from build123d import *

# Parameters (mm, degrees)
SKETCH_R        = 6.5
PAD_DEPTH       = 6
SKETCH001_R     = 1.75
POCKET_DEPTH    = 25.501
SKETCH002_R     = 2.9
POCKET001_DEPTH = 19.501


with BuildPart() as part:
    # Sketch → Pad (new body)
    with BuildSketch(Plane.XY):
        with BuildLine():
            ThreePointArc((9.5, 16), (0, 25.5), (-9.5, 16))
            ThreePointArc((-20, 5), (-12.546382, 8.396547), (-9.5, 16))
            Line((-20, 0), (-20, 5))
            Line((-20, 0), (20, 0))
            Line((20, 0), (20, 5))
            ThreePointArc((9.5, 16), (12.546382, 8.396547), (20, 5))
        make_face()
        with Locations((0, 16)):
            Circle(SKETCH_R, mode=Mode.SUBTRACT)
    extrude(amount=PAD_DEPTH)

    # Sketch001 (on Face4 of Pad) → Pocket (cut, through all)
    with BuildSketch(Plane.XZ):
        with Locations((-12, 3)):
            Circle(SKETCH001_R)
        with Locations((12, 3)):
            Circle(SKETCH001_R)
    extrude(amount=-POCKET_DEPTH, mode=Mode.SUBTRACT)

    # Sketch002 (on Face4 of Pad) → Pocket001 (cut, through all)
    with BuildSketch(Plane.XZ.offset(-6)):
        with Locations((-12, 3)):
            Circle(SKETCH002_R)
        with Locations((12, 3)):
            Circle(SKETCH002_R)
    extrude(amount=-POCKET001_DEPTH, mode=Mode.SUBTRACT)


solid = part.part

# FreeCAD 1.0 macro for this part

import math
import FreeCAD as App
import Part
import Sketcher
from FreeCAD import Vector

doc = App.newDocument("Part")
body = doc.addObject("PartDesign::Body", "Body")

# Sketch on XY plane
sketch1 = body.newObject("Sketcher::SketchObject", "Sketch")
sketch1.AttachmentSupport = (doc.getObject("XY_Plane"), [""])
sketch1.MapMode = "FlatFace"
sketch1.addGeometry([
    Part.ArcOfCircle(Part.Circle(Vector(0, 16, 0), Vector(0, 0, 1), 9.5), math.radians(0), math.radians(180)),  # 0
    Part.ArcOfCircle(Part.Circle(Vector(-20.511904, 16, 0), Vector(0, 0, 1), 11.011904), math.radians(-87.335563), math.radians(0.000002)),  # 1
    Part.LineSegment(Vector(-20, 5, 0), Vector(-20, 0, 0)),  # 2
    Part.LineSegment(Vector(-20, 0, 0), Vector(20, 0, 0)),  # 3
    Part.LineSegment(Vector(20, 0, 0), Vector(20, 5, 0)),  # 4
    Part.ArcOfCircle(Part.Circle(Vector(20.511904, 16, 0), Vector(0, 0, 1), 11.011904), math.radians(179.999998), math.radians(267.335563)),  # 5
    Part.Circle(Vector(0, 16, 0), Vector(0, 0, 1), 6.5),  # 6
], False)
sketch1.addConstraint([
    Sketcher.Constraint("Tangent", 0, 2, 1, 2),
    Sketcher.Constraint("Coincident", 1, 1, 2, 1),
    Sketcher.Constraint("Coincident", 2, 2, 3, 1),
    Sketcher.Constraint("Coincident", 3, 2, 4, 1),
    Sketcher.Constraint("Coincident", 4, 2, 5, 2),
    Sketcher.Constraint("Tangent", 5, 1, 0, 1),
    Sketcher.Constraint("Vertical", 2),
    Sketcher.Constraint("Horizontal", 3),
    Sketcher.Constraint("Vertical", 4),
    Sketcher.Constraint("Coincident", 6, 3, 0, 3),
    Sketcher.Constraint("Equal", 1, 5),
    Sketcher.Constraint("Symmetric", 2, 2, 3, 2, -1, 1),
    Sketcher.Constraint("Symmetric", 1, 3, 5, 3, -2),
    Sketcher.Constraint("Horizontal", 0, 3, 1, 3),
    Sketcher.Constraint("Diameter", 6, 13.0),
    Sketcher.Constraint("Radius", 0, 9.5),
    Sketcher.Constraint("DistanceX", 3, 1, 3, 2, 40.0),
    Sketcher.Constraint("DistanceY", 2, 2, 2, 1, 5.0),
    Sketcher.Constraint("DistanceY", -1, 1, 0, 3, 16.0),
])
pad1 = body.newObject("PartDesign::Pad", "Pad")
pad1.Profile = sketch1
pad1.Length = 6

# Sketch on XZ plane
sketch2 = body.newObject("Sketcher::SketchObject", "Sketch001")
sketch2.AttachmentSupport = (doc.getObject("XZ_Plane"), [""])
sketch2.MapMode = "FlatFace"
sketch2.addGeometry([
    Part.Circle(Vector(-12, 3, 0), Vector(0, 0, 1), 1.75),
    Part.Circle(Vector(12, 3, 0), Vector(0, 0, 1), 1.75),
], False)
sketch2.addConstraint([
    Sketcher.Constraint("Equal", 0, 1),
    Sketcher.Constraint("Symmetric", 0, 3, 1, 3, -2),
    Sketcher.Constraint("Diameter", 0, 3.5),
    Sketcher.Constraint("DistanceX", 0, 3, -1, 1, 12.0),
    Sketcher.Constraint("DistanceY", -1, 1, 0, 3, 3.0),
])
pocket1 = body.newObject("PartDesign::Pocket", "Pocket")
pocket1.Profile = sketch2
pocket1.Type = "ThroughAll"

# Sketch on XZ plane
sketch3 = body.newObject("Sketcher::SketchObject", "Sketch002")
sketch3.AttachmentSupport = (doc.getObject("XZ_Plane"), [""])
sketch3.MapMode = "FlatFace"
sketch3.AttachmentOffset = App.Placement(Vector(0, 0, -6), App.Rotation())
sketch3.addGeometry([
    Part.Circle(Vector(-12, 3, 0), Vector(0, 0, 1), 2.9),
    Part.Circle(Vector(12, 3, 0), Vector(0, 0, 1), 2.9),
], False)
sketch3.addConstraint([
    Sketcher.Constraint("Equal", 0, 1),
    Sketcher.Constraint("Symmetric", 0, 3, 1, 3, -2),
    Sketcher.Constraint("Diameter", 0, 5.8),
    Sketcher.Constraint("DistanceX", 0, 3, -1, 1, 12.0),
    Sketcher.Constraint("DistanceY", -1, 1, 0, 3, 3.0),
])
pocket2 = body.newObject("PartDesign::Pocket", "Pocket001")
pocket2.Profile = sketch3
pocket2.Type = "ThroughAll"

doc.recompute()
